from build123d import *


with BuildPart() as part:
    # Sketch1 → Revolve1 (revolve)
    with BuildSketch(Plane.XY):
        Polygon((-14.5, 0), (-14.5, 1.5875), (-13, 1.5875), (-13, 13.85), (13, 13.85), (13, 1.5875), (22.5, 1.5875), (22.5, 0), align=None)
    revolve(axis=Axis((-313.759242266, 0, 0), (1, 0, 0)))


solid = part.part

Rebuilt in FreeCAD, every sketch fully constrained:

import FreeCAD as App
import Part
import Sketcher
from FreeCAD import Vector

doc = App.newDocument("Part")
body = doc.addObject("PartDesign::Body", "Body")

# Sketch on XY plane
sketch1 = body.newObject("Sketcher::SketchObject", "Sketch")
sketch1.AttachmentSupport = (doc.getObject("XY_Plane"), [""])
sketch1.MapMode = "FlatFace"
sketch1.addGeometry([
    Part.LineSegment(Vector(-14.5, 1.6, 0), Vector(-14.5, 0, 0)),  # 0
    Part.LineSegment(Vector(-14.5, 0, 0), Vector(22.5, 0, 0)),  # 1
    Part.LineSegment(Vector(22.5, 0, 0), Vector(22.5, 1.6, 0)),  # 2
    Part.LineSegment(Vector(22.5, 1.6, 0), Vector(13, 1.6, 0)),  # 3
    Part.LineSegment(Vector(13, 1.6, 0), Vector(13, 13.8, 0)),  # 4
    Part.LineSegment(Vector(13, 13.8, 0), Vector(-13, 13.8, 0)),  # 5
    Part.LineSegment(Vector(-13, 13.8, 0), Vector(-13, 1.6, 0)),  # 6
    Part.LineSegment(Vector(-13, 1.6, 0), Vector(-14.5, 1.6, 0)),  # 7
], False)
sketch1.addConstraint([
    Sketcher.Constraint("Coincident", 0, 2, 1, 1),
    Sketcher.Constraint("Coincident", 1, 2, 2, 1),
    Sketcher.Constraint("Coincident", 2, 2, 3, 1),
    Sketcher.Constraint("Coincident", 3, 2, 4, 1),
    Sketcher.Constraint("Coincident", 4, 2, 5, 1),
    Sketcher.Constraint("Coincident", 5, 2, 6, 1),
    Sketcher.Constraint("Coincident", 6, 2, 7, 1),
    Sketcher.Constraint("Coincident", 7, 2, 0, 1),
    Sketcher.Constraint("Vertical", 0),
    Sketcher.Constraint("Horizontal", 1),
    Sketcher.Constraint("Vertical", 2),
    Sketcher.Constraint("Horizontal", 3),
    Sketcher.Constraint("Vertical", 4),
    Sketcher.Constraint("Horizontal", 5),
    Sketcher.Constraint("Vertical", 6),
    Sketcher.Constraint("Horizontal", 7),
    Sketcher.Constraint("Symmetric", 3, 2, 6, 2, -2),
    Sketcher.Constraint("PointOnObject", 0, 2, -1),
    Sketcher.Constraint("DistanceX", 1, 1, 1, 2, 37.0),
    Sketcher.Constraint("DistanceX", 5, 2, 5, 1, 26.0),
    Sketcher.Constraint("DistanceX", 3, 2, 3, 1, 9.5),
    Sketcher.Constraint("DistanceY", -1, 1, 4, 2, 13.85),
    Sketcher.Constraint("DistanceY", 0, 2, 0, 1, 1.5875),
])
revolution = body.newObject("PartDesign::Revolution", "Revolution")
revolution.Profile = sketch1
revolution.ReferenceAxis = (sketch1, ["H_Axis"])
revolution.Angle = 360

doc.recompute()
